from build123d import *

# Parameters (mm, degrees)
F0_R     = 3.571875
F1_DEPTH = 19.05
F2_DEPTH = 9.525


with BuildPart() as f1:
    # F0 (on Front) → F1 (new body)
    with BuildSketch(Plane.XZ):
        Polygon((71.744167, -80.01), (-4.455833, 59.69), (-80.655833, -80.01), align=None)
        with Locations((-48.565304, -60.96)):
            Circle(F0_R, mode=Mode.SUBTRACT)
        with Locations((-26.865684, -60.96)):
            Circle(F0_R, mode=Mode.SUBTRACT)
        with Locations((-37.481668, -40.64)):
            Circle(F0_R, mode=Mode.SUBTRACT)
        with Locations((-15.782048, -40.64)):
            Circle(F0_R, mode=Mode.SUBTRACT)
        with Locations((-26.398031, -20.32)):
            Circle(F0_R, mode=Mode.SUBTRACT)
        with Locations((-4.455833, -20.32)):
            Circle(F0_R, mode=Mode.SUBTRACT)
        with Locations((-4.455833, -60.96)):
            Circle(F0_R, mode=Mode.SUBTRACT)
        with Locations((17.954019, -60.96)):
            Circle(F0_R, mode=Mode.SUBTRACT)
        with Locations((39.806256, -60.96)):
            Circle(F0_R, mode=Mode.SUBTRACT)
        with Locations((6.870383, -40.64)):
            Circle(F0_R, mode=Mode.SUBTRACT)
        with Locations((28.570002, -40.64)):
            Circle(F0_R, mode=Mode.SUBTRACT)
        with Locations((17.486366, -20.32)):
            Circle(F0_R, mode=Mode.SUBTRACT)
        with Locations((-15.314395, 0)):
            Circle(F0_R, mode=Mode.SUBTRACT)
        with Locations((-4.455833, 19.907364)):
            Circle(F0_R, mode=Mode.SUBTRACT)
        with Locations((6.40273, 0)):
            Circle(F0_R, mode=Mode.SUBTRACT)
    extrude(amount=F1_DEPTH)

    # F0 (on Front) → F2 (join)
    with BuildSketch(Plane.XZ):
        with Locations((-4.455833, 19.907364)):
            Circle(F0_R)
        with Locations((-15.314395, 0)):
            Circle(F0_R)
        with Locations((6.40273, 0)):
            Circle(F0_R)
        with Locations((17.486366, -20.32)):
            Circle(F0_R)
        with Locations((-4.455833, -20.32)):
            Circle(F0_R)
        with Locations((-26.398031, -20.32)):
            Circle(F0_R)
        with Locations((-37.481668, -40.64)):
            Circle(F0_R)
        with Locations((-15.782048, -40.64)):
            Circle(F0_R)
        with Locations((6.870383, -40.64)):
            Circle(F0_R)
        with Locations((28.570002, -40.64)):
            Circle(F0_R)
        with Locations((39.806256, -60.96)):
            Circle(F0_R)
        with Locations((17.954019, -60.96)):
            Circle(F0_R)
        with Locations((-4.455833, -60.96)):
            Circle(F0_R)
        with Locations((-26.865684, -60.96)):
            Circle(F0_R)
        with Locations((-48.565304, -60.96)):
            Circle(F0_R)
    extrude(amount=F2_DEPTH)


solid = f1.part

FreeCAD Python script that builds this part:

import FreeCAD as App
import Part
import Sketcher
from FreeCAD import Vector
Q = App.Units.Quantity


def add_polygon(sketch, points):
    """Adds a closed chain of lines whose ends are joined by coincident constraints."""
    first, n = sketch.GeometryCount, len(points)
    for a, b in zip(points, points[1:] + points[:1]):
        sketch.addGeometry(Part.LineSegment(App.Vector(*a, 0), App.Vector(*b, 0)), False)
    for i in range(n):
        sketch.addConstraint(Sketcher.Constraint("Coincident", first + i, 2, first + (i + 1) % n, 1))

doc = App.newDocument("Part")
body = doc.addObject("PartDesign::Body", "Body")

# Sketch on XZ plane
sketch1 = body.newObject("Sketcher::SketchObject", "Sketch")
sketch1.AttachmentSupport = (doc.getObject("XZ_Plane"), [""])
sketch1.MapMode = "FlatFace"
add_polygon(sketch1, [(71.7, -80), (-4.5, 59.7), (-80.7, -80)])  # lines 0-2
sketch1.addGeometry(Part.Circle(Vector(-48.6, -61, 0), Vector(0, 0, 1), 3.6), False)  # 3
sketch1.addGeometry(Part.Circle(Vector(-26.9, -61, 0), Vector(0, 0, 1), 3.6), False)  # 4
sketch1.addGeometry(Part.Circle(Vector(-4.5, -61, 0), Vector(0, 0, 1), 3.6), False)  # 5
sketch1.addGeometry(Part.Circle(Vector(-37.5, -40.6, 0), Vector(0, 0, 1), 3.6), False)  # 6
sketch1.addGeometry(Part.Circle(Vector(-15.8, -40.6, 0), Vector(0, 0, 1), 3.6), False)  # 7
sketch1.addGeometry(Part.Circle(Vector(18, -61, 0), Vector(0, 0, 1), 3.6), False)  # 8
sketch1.addGeometry(Part.Circle(Vector(39.8, -61, 0), Vector(0, 0, 1), 3.6), False)  # 9
sketch1.addGeometry(Part.Circle(Vector(6.9, -40.6, 0), Vector(0, 0, 1), 3.6), False)  # 10
sketch1.addGeometry(Part.Circle(Vector(28.6, -40.6, 0), Vector(0, 0, 1), 3.6), False)  # 11
sketch1.addGeometry(Part.Circle(Vector(-26.4, -20.3, 0), Vector(0, 0, 1), 3.6), False)  # 12
sketch1.addGeometry(Part.Circle(Vector(-4.5, -20.3, 0), Vector(0, 0, 1), 3.6), False)  # 13
sketch1.addGeometry(Part.Circle(Vector(-15.3, 0, 0), Vector(0, 0, 1), 3.6), False)  # 14
sketch1.addGeometry(Part.Circle(Vector(-4.5, 19.9, 0), Vector(0, 0, 1), 3.6), False)  # 15
sketch1.addGeometry(Part.Circle(Vector(17.5, -20.3, 0), Vector(0, 0, 1), 3.6), False)  # 16
sketch1.addGeometry(Part.Circle(Vector(6.4, 0, 0), Vector(0, 0, 1), 3.6), False)  # 17
sketch1.addConstraint([
    Sketcher.Constraint("Horizontal", 2),
    Sketcher.Constraint("Equal", 3, 4),
    Sketcher.Constraint("Equal", 4, 5),
    Sketcher.Constraint("Equal", 5, 6),
    Sketcher.Constraint("Equal", 6, 7),
    Sketcher.Constraint("Equal", 7, 8),
    Sketcher.Constraint("Equal", 8, 9),
    Sketcher.Constraint("Equal", 9, 10),
    Sketcher.Constraint("Equal", 10, 11),
    Sketcher.Constraint("Equal", 11, 12),
    Sketcher.Constraint("Equal", 12, 13),
    Sketcher.Constraint("Equal", 13, 14),
    Sketcher.Constraint("Equal", 14, 15),
    Sketcher.Constraint("Equal", 15, 16),
    Sketcher.Constraint("Equal", 16, 17),
    Sketcher.Constraint("PointOnObject", 14, 3, -1),
    Sketcher.Constraint("PointOnObject", 17, 3, -1),
    Sketcher.Constraint("Horizontal", 3, 3, 4, 3),
    Sketcher.Constraint("Horizontal", 4, 3, 5, 3),
    Sketcher.Constraint("Horizontal", 6, 3, 7, 3),
    Sketcher.Constraint("Horizontal", 5, 3, 8, 3),
    Sketcher.Constraint("Horizontal", 8, 3, 9, 3),
    Sketcher.Constraint("Horizontal", 7, 3, 10, 3),
    Sketcher.Constraint("Horizontal", 10, 3, 11, 3),
    Sketcher.Constraint("Horizontal", 12, 3, 13, 3),
    Sketcher.Constraint("Horizontal", 13, 3, 16, 3),
    Sketcher.Constraint("Vertical", 5, 3, 13, 3),
    Sketcher.Constraint("Vertical", 13, 3, 15, 3),
    Sketcher.Constraint("Vertical", 15, 3, 0, 2),
    Sketcher.Constraint("Equal", 0, 1),
    Sketcher.Constraint("DistanceX", 2, 1, 2, 2, Q("6 in")),
    Sketcher.Constraint("Diameter", 3, Q("0.28125 in")),
    Sketcher.Constraint("DistanceY", 3, 3, -1, 1, Q("2.4 in")),
    Sketcher.Constraint("DistanceY", 6, 3, -1, 1, Q("1.6 in")),
    Sketcher.Constraint("DistanceY", 12, 3, -1, 1, Q("0.8 in")),
    Sketcher.Constraint("DistanceY", -1, 1, 0, 2, Q("2.35 in")),
    Sketcher.Constraint("DistanceY", 1, 2, -1, 1, Q("3.15 in")),
    Sketcher.Constraint("DistanceX", -1, 1, 11, 3, Q("28.570002 mm")),
    Sketcher.Constraint("DistanceX", 13, 3, 16, 3, Q("21.942199 mm")),
    Sketcher.Constraint("DistanceX", -1, 1, 8, 3, Q("17.954019 mm")),
    Sketcher.Constraint("DistanceX", 12, 3, -1, 1, Q("26.398031 mm")),
    Sketcher.Constraint("DistanceX", -1, 1, 17, 3, Q("6.40273 mm")),
    Sketcher.Constraint("DistanceX", 3, 3, 4, 3, Q("21.69962 mm")),
    Sketcher.Constraint("DistanceX", 4, 3, 5, 3, Q("22.409851 mm")),
    Sketcher.Constraint("DistanceX", 6, 3, 7, 3, Q("21.69962 mm")),
    Sketcher.Constraint("DistanceX", 5, 3, 9, 3, Q("44.262089 mm")),
    Sketcher.Constraint("DistanceX", 7, 3, 10, 3, Q("22.652431 mm")),
    Sketcher.Constraint("DistanceX", 10, 3, 11, 3, Q("21.699619 mm")),
    Sketcher.Constraint("DistanceX", 14, 3, 13, 3, Q("10.858562 mm")),
    Sketcher.Constraint("DistanceX", 14, 3, 10, 3, Q("22.184778 mm")),
    Sketcher.Constraint("DistanceY", -1, 1, 15, 3, Q("19.907364 mm")),
])
pad1 = body.newObject("PartDesign::Pad", "Pad")
pad1.Profile = sketch1
pad1.Length = Q("0.75 in")

# Sketch on XZ plane
sketch2 = body.newObject("Sketcher::SketchObject", "Sketch001")
sketch2.AttachmentSupport = (doc.getObject("XZ_Plane"), [""])
sketch2.MapMode = "FlatFace"
sketch2.addGeometry([
    Part.Circle(Vector(-4.5, 19.9, 0), Vector(0, 0, 1), 3.6),  # 0
    Part.Circle(Vector(-15.3, 0, 0), Vector(0, 0, 1), 3.6),  # 1
    Part.Circle(Vector(6.4, 0, 0), Vector(0, 0, 1), 3.6),  # 2
    Part.Circle(Vector(17.5, -20.3, 0), Vector(0, 0, 1), 3.6),  # 3
    Part.Circle(Vector(-4.5, -20.3, 0), Vector(0, 0, 1), 3.6),  # 4
    Part.Circle(Vector(-26.4, -20.3, 0), Vector(0, 0, 1), 3.6),  # 5
    Part.Circle(Vector(-37.5, -40.6, 0), Vector(0, 0, 1), 3.6),  # 6
    Part.Circle(Vector(-15.8, -40.6, 0), Vector(0, 0, 1), 3.6),  # 7
    Part.Circle(Vector(6.9, -40.6, 0), Vector(0, 0, 1), 3.6),  # 8
    Part.Circle(Vector(28.6, -40.6, 0), Vector(0, 0, 1), 3.6),  # 9
    Part.Circle(Vector(39.8, -61, 0), Vector(0, 0, 1), 3.6),  # 10
    Part.Circle(Vector(18, -61, 0), Vector(0, 0, 1), 3.6),  # 11
    Part.Circle(Vector(-4.5, -61, 0), Vector(0, 0, 1), 3.6),  # 12
    Part.Circle(Vector(-26.9, -61, 0), Vector(0, 0, 1), 3.6),  # 13
    Part.Circle(Vector(-48.6, -61, 0), Vector(0, 0, 1), 3.6),  # 14
], False)
sketch2.addConstraint([
    Sketcher.Constraint("Equal", 0, 1),
    Sketcher.Constraint("Equal", 1, 2),
    Sketcher.Constraint("Equal", 2, 3),
    Sketcher.Constraint("Equal", 3, 4),
    Sketcher.Constraint("Equal", 4, 5),
    Sketcher.Constraint("Equal", 5, 6),
    Sketcher.Constraint("Equal", 6, 7),
    Sketcher.Constraint("Equal", 7, 8),
    Sketcher.Constraint("Equal", 8, 9),
    Sketcher.Constraint("Equal", 9, 10),
    Sketcher.Constraint("Equal", 10, 11),
    Sketcher.Constraint("Equal", 11, 12),
    Sketcher.Constraint("Equal", 12, 13),
    Sketcher.Constraint("Equal", 13, 14),
    Sketcher.Constraint("PointOnObject", 1, 3, -1),
    Sketcher.Constraint("PointOnObject", 2, 3, -1),
    Sketcher.Constraint("Horizontal", 3, 3, 4, 3),
    Sketcher.Constraint("Horizontal", 4, 3, 5, 3),
    Sketcher.Constraint("Horizontal", 6, 3, 7, 3),
    Sketcher.Constraint("Horizontal", 7, 3, 8, 3),
    Sketcher.Constraint("Horizontal", 8, 3, 9, 3),
    Sketcher.Constraint("Horizontal", 10, 3, 11, 3),
    Sketcher.Constraint("Horizontal", 11, 3, 12, 3),
    Sketcher.Constraint("Horizontal", 12, 3, 13, 3),
    Sketcher.Constraint("Horizontal", 13, 3, 14, 3),
    Sketcher.Constraint("Vertical", 0, 3, 4, 3),
    Sketcher.Constraint("Vertical", 4, 3, 12, 3),
    Sketcher.Constraint("Diameter", 0, Q("0.28125 in")),
    Sketcher.Constraint("DistanceY", 3, 3, -1, 1, Q("0.8 in")),
    Sketcher.Constraint("DistanceY", 6, 3, -1, 1, Q("1.6 in")),
    Sketcher.Constraint("DistanceY", 10, 3, -1, 1, Q("2.4 in")),
    Sketcher.Constraint("DistanceX", -1, 1, 9, 3, Q("28.570002 mm")),
    Sketcher.Constraint("DistanceX", 0, 3, 3, 3, Q("21.942199 mm")),
    Sketcher.Constraint("DistanceX", -1, 1, 2, 3, Q("6.40273 mm")),
    Sketcher.Constraint("DistanceX", 5, 3, -1, 1, Q("26.398031 mm")),
    Sketcher.Constraint("DistanceX", -1, 1, 11, 3, Q("17.954019 mm")),
    Sketcher.Constraint("DistanceX", 1, 3, 0, 3, Q("10.858562 mm")),
    Sketcher.Constraint("DistanceX", 6, 3, 7, 3, Q("21.69962 mm")),
    Sketcher.Constraint("DistanceX", 7, 3, 8, 3, Q("22.652431 mm")),
    Sketcher.Constraint("DistanceX", 8, 3, 9, 3, Q("21.699619 mm")),
    Sketcher.Constraint("DistanceX", 3, 3, 10, 3, Q("22.31989 mm")),
    Sketcher.Constraint("DistanceX", 13, 3, 12, 3, Q("22.409851 mm")),
    Sketcher.Constraint("DistanceX", 14, 3, 13, 3, Q("21.69962 mm")),
    Sketcher.Constraint("DistanceX", 0, 3, -1, 1, Q("4.455833 mm")),
    Sketcher.Constraint("DistanceY", -1, 1, 0, 3, Q("19.907364 mm")),
])
pad2 = body.newObject("PartDesign::Pad", "Pad001")
pad2.Profile = sketch2
pad2.Length = Q("0.375 in")

doc.recompute()
